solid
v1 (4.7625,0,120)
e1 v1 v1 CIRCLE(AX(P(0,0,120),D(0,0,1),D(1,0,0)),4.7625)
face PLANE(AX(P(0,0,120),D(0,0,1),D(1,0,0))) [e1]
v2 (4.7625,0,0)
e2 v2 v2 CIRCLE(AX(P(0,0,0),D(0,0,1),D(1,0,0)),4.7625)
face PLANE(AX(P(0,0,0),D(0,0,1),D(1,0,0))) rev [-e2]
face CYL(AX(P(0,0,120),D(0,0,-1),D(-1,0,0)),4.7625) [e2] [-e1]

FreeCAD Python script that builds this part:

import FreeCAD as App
import Part
import Sketcher

V = App.Vector
Q = App.Units.Quantity

doc = App.newDocument("Part")
body = doc.addObject("PartDesign::Body", "Body")

sketch1 = body.newObject("Sketcher::SketchObject", "Sketch")
sketch1.AttachmentSupport = (doc.getObject("XY_Plane"), [""])
sketch1.MapMode = "FlatFace"
sketch1.addGeometry(Part.Circle(V(0, 0, 0), V(0, 0, 1), 4.7625), False)
sketch1.addConstraint([
    Sketcher.Constraint("Coincident", 0, 3, -1, 1),
    Sketcher.Constraint("Diameter", 0, Q("9.525 mm")),
])
pad1 = body.newObject("PartDesign::Pad", "Pad")
pad1.Profile = sketch1
pad1.Length = 120

doc.recompute()
